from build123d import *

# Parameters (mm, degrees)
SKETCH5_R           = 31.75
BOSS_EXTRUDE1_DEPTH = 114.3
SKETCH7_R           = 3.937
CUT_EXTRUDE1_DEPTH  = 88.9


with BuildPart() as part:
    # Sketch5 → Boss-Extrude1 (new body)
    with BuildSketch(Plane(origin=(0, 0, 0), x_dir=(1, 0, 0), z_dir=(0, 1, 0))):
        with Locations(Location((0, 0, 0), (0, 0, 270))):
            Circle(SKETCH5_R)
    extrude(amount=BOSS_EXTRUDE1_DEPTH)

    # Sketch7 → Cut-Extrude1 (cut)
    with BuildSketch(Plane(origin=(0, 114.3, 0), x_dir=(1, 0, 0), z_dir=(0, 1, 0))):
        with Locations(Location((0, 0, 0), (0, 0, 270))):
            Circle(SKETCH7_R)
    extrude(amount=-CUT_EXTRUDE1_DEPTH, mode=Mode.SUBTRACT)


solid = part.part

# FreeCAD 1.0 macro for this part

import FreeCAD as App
import Part
import Sketcher
Q = App.Units.Quantity

doc = App.newDocument("Part")
body = doc.addObject("PartDesign::Body", "Body")

# Sketch on XZ plane
sketch1 = body.newObject("Sketcher::SketchObject", "Sketch")
sketch1.AttachmentSupport = (doc.getObject("XZ_Plane"), [""])
sketch1.MapMode = "FlatFace"
sketch1.addGeometry(Part.Circle(App.Vector(0, 0, 0), App.Vector(0, 0, 1), 32), False)
sketch1.addConstraint(Sketcher.Constraint("Coincident", 0, 3, -1, 1))
sketch1.addConstraint(Sketcher.Constraint("Diameter", 0, Q("2.5 in")))
pad1 = body.newObject("PartDesign::Pad", "Pad")
pad1.Profile = sketch1
pad1.Length = Q("4.5 in")
pad1.Reversed = True

# Sketch on XZ plane
sketch2 = body.newObject("Sketcher::SketchObject", "Sketch001")
sketch2.AttachmentSupport = (doc.getObject("XZ_Plane"), [""])
sketch2.MapMode = "FlatFace"
sketch2.AttachmentOffset = App.Placement(App.Vector(0, 0, -4.5 * 25.4), App.Rotation())
sketch2.addGeometry(Part.Circle(App.Vector(0, 0, 0), App.Vector(0, 0, 1), 3.9), False)
sketch2.addConstraint(Sketcher.Constraint("Coincident", 0, 3, -1, 1))
sketch2.addConstraint(Sketcher.Constraint("Diameter", 0, Q("0.31 in")))
pocket1 = body.newObject("PartDesign::Pocket", "Pocket")
pocket1.Profile = sketch2
pocket1.Length = Q("3.5 in")
pocket1.Reversed = True

doc.recompute()
